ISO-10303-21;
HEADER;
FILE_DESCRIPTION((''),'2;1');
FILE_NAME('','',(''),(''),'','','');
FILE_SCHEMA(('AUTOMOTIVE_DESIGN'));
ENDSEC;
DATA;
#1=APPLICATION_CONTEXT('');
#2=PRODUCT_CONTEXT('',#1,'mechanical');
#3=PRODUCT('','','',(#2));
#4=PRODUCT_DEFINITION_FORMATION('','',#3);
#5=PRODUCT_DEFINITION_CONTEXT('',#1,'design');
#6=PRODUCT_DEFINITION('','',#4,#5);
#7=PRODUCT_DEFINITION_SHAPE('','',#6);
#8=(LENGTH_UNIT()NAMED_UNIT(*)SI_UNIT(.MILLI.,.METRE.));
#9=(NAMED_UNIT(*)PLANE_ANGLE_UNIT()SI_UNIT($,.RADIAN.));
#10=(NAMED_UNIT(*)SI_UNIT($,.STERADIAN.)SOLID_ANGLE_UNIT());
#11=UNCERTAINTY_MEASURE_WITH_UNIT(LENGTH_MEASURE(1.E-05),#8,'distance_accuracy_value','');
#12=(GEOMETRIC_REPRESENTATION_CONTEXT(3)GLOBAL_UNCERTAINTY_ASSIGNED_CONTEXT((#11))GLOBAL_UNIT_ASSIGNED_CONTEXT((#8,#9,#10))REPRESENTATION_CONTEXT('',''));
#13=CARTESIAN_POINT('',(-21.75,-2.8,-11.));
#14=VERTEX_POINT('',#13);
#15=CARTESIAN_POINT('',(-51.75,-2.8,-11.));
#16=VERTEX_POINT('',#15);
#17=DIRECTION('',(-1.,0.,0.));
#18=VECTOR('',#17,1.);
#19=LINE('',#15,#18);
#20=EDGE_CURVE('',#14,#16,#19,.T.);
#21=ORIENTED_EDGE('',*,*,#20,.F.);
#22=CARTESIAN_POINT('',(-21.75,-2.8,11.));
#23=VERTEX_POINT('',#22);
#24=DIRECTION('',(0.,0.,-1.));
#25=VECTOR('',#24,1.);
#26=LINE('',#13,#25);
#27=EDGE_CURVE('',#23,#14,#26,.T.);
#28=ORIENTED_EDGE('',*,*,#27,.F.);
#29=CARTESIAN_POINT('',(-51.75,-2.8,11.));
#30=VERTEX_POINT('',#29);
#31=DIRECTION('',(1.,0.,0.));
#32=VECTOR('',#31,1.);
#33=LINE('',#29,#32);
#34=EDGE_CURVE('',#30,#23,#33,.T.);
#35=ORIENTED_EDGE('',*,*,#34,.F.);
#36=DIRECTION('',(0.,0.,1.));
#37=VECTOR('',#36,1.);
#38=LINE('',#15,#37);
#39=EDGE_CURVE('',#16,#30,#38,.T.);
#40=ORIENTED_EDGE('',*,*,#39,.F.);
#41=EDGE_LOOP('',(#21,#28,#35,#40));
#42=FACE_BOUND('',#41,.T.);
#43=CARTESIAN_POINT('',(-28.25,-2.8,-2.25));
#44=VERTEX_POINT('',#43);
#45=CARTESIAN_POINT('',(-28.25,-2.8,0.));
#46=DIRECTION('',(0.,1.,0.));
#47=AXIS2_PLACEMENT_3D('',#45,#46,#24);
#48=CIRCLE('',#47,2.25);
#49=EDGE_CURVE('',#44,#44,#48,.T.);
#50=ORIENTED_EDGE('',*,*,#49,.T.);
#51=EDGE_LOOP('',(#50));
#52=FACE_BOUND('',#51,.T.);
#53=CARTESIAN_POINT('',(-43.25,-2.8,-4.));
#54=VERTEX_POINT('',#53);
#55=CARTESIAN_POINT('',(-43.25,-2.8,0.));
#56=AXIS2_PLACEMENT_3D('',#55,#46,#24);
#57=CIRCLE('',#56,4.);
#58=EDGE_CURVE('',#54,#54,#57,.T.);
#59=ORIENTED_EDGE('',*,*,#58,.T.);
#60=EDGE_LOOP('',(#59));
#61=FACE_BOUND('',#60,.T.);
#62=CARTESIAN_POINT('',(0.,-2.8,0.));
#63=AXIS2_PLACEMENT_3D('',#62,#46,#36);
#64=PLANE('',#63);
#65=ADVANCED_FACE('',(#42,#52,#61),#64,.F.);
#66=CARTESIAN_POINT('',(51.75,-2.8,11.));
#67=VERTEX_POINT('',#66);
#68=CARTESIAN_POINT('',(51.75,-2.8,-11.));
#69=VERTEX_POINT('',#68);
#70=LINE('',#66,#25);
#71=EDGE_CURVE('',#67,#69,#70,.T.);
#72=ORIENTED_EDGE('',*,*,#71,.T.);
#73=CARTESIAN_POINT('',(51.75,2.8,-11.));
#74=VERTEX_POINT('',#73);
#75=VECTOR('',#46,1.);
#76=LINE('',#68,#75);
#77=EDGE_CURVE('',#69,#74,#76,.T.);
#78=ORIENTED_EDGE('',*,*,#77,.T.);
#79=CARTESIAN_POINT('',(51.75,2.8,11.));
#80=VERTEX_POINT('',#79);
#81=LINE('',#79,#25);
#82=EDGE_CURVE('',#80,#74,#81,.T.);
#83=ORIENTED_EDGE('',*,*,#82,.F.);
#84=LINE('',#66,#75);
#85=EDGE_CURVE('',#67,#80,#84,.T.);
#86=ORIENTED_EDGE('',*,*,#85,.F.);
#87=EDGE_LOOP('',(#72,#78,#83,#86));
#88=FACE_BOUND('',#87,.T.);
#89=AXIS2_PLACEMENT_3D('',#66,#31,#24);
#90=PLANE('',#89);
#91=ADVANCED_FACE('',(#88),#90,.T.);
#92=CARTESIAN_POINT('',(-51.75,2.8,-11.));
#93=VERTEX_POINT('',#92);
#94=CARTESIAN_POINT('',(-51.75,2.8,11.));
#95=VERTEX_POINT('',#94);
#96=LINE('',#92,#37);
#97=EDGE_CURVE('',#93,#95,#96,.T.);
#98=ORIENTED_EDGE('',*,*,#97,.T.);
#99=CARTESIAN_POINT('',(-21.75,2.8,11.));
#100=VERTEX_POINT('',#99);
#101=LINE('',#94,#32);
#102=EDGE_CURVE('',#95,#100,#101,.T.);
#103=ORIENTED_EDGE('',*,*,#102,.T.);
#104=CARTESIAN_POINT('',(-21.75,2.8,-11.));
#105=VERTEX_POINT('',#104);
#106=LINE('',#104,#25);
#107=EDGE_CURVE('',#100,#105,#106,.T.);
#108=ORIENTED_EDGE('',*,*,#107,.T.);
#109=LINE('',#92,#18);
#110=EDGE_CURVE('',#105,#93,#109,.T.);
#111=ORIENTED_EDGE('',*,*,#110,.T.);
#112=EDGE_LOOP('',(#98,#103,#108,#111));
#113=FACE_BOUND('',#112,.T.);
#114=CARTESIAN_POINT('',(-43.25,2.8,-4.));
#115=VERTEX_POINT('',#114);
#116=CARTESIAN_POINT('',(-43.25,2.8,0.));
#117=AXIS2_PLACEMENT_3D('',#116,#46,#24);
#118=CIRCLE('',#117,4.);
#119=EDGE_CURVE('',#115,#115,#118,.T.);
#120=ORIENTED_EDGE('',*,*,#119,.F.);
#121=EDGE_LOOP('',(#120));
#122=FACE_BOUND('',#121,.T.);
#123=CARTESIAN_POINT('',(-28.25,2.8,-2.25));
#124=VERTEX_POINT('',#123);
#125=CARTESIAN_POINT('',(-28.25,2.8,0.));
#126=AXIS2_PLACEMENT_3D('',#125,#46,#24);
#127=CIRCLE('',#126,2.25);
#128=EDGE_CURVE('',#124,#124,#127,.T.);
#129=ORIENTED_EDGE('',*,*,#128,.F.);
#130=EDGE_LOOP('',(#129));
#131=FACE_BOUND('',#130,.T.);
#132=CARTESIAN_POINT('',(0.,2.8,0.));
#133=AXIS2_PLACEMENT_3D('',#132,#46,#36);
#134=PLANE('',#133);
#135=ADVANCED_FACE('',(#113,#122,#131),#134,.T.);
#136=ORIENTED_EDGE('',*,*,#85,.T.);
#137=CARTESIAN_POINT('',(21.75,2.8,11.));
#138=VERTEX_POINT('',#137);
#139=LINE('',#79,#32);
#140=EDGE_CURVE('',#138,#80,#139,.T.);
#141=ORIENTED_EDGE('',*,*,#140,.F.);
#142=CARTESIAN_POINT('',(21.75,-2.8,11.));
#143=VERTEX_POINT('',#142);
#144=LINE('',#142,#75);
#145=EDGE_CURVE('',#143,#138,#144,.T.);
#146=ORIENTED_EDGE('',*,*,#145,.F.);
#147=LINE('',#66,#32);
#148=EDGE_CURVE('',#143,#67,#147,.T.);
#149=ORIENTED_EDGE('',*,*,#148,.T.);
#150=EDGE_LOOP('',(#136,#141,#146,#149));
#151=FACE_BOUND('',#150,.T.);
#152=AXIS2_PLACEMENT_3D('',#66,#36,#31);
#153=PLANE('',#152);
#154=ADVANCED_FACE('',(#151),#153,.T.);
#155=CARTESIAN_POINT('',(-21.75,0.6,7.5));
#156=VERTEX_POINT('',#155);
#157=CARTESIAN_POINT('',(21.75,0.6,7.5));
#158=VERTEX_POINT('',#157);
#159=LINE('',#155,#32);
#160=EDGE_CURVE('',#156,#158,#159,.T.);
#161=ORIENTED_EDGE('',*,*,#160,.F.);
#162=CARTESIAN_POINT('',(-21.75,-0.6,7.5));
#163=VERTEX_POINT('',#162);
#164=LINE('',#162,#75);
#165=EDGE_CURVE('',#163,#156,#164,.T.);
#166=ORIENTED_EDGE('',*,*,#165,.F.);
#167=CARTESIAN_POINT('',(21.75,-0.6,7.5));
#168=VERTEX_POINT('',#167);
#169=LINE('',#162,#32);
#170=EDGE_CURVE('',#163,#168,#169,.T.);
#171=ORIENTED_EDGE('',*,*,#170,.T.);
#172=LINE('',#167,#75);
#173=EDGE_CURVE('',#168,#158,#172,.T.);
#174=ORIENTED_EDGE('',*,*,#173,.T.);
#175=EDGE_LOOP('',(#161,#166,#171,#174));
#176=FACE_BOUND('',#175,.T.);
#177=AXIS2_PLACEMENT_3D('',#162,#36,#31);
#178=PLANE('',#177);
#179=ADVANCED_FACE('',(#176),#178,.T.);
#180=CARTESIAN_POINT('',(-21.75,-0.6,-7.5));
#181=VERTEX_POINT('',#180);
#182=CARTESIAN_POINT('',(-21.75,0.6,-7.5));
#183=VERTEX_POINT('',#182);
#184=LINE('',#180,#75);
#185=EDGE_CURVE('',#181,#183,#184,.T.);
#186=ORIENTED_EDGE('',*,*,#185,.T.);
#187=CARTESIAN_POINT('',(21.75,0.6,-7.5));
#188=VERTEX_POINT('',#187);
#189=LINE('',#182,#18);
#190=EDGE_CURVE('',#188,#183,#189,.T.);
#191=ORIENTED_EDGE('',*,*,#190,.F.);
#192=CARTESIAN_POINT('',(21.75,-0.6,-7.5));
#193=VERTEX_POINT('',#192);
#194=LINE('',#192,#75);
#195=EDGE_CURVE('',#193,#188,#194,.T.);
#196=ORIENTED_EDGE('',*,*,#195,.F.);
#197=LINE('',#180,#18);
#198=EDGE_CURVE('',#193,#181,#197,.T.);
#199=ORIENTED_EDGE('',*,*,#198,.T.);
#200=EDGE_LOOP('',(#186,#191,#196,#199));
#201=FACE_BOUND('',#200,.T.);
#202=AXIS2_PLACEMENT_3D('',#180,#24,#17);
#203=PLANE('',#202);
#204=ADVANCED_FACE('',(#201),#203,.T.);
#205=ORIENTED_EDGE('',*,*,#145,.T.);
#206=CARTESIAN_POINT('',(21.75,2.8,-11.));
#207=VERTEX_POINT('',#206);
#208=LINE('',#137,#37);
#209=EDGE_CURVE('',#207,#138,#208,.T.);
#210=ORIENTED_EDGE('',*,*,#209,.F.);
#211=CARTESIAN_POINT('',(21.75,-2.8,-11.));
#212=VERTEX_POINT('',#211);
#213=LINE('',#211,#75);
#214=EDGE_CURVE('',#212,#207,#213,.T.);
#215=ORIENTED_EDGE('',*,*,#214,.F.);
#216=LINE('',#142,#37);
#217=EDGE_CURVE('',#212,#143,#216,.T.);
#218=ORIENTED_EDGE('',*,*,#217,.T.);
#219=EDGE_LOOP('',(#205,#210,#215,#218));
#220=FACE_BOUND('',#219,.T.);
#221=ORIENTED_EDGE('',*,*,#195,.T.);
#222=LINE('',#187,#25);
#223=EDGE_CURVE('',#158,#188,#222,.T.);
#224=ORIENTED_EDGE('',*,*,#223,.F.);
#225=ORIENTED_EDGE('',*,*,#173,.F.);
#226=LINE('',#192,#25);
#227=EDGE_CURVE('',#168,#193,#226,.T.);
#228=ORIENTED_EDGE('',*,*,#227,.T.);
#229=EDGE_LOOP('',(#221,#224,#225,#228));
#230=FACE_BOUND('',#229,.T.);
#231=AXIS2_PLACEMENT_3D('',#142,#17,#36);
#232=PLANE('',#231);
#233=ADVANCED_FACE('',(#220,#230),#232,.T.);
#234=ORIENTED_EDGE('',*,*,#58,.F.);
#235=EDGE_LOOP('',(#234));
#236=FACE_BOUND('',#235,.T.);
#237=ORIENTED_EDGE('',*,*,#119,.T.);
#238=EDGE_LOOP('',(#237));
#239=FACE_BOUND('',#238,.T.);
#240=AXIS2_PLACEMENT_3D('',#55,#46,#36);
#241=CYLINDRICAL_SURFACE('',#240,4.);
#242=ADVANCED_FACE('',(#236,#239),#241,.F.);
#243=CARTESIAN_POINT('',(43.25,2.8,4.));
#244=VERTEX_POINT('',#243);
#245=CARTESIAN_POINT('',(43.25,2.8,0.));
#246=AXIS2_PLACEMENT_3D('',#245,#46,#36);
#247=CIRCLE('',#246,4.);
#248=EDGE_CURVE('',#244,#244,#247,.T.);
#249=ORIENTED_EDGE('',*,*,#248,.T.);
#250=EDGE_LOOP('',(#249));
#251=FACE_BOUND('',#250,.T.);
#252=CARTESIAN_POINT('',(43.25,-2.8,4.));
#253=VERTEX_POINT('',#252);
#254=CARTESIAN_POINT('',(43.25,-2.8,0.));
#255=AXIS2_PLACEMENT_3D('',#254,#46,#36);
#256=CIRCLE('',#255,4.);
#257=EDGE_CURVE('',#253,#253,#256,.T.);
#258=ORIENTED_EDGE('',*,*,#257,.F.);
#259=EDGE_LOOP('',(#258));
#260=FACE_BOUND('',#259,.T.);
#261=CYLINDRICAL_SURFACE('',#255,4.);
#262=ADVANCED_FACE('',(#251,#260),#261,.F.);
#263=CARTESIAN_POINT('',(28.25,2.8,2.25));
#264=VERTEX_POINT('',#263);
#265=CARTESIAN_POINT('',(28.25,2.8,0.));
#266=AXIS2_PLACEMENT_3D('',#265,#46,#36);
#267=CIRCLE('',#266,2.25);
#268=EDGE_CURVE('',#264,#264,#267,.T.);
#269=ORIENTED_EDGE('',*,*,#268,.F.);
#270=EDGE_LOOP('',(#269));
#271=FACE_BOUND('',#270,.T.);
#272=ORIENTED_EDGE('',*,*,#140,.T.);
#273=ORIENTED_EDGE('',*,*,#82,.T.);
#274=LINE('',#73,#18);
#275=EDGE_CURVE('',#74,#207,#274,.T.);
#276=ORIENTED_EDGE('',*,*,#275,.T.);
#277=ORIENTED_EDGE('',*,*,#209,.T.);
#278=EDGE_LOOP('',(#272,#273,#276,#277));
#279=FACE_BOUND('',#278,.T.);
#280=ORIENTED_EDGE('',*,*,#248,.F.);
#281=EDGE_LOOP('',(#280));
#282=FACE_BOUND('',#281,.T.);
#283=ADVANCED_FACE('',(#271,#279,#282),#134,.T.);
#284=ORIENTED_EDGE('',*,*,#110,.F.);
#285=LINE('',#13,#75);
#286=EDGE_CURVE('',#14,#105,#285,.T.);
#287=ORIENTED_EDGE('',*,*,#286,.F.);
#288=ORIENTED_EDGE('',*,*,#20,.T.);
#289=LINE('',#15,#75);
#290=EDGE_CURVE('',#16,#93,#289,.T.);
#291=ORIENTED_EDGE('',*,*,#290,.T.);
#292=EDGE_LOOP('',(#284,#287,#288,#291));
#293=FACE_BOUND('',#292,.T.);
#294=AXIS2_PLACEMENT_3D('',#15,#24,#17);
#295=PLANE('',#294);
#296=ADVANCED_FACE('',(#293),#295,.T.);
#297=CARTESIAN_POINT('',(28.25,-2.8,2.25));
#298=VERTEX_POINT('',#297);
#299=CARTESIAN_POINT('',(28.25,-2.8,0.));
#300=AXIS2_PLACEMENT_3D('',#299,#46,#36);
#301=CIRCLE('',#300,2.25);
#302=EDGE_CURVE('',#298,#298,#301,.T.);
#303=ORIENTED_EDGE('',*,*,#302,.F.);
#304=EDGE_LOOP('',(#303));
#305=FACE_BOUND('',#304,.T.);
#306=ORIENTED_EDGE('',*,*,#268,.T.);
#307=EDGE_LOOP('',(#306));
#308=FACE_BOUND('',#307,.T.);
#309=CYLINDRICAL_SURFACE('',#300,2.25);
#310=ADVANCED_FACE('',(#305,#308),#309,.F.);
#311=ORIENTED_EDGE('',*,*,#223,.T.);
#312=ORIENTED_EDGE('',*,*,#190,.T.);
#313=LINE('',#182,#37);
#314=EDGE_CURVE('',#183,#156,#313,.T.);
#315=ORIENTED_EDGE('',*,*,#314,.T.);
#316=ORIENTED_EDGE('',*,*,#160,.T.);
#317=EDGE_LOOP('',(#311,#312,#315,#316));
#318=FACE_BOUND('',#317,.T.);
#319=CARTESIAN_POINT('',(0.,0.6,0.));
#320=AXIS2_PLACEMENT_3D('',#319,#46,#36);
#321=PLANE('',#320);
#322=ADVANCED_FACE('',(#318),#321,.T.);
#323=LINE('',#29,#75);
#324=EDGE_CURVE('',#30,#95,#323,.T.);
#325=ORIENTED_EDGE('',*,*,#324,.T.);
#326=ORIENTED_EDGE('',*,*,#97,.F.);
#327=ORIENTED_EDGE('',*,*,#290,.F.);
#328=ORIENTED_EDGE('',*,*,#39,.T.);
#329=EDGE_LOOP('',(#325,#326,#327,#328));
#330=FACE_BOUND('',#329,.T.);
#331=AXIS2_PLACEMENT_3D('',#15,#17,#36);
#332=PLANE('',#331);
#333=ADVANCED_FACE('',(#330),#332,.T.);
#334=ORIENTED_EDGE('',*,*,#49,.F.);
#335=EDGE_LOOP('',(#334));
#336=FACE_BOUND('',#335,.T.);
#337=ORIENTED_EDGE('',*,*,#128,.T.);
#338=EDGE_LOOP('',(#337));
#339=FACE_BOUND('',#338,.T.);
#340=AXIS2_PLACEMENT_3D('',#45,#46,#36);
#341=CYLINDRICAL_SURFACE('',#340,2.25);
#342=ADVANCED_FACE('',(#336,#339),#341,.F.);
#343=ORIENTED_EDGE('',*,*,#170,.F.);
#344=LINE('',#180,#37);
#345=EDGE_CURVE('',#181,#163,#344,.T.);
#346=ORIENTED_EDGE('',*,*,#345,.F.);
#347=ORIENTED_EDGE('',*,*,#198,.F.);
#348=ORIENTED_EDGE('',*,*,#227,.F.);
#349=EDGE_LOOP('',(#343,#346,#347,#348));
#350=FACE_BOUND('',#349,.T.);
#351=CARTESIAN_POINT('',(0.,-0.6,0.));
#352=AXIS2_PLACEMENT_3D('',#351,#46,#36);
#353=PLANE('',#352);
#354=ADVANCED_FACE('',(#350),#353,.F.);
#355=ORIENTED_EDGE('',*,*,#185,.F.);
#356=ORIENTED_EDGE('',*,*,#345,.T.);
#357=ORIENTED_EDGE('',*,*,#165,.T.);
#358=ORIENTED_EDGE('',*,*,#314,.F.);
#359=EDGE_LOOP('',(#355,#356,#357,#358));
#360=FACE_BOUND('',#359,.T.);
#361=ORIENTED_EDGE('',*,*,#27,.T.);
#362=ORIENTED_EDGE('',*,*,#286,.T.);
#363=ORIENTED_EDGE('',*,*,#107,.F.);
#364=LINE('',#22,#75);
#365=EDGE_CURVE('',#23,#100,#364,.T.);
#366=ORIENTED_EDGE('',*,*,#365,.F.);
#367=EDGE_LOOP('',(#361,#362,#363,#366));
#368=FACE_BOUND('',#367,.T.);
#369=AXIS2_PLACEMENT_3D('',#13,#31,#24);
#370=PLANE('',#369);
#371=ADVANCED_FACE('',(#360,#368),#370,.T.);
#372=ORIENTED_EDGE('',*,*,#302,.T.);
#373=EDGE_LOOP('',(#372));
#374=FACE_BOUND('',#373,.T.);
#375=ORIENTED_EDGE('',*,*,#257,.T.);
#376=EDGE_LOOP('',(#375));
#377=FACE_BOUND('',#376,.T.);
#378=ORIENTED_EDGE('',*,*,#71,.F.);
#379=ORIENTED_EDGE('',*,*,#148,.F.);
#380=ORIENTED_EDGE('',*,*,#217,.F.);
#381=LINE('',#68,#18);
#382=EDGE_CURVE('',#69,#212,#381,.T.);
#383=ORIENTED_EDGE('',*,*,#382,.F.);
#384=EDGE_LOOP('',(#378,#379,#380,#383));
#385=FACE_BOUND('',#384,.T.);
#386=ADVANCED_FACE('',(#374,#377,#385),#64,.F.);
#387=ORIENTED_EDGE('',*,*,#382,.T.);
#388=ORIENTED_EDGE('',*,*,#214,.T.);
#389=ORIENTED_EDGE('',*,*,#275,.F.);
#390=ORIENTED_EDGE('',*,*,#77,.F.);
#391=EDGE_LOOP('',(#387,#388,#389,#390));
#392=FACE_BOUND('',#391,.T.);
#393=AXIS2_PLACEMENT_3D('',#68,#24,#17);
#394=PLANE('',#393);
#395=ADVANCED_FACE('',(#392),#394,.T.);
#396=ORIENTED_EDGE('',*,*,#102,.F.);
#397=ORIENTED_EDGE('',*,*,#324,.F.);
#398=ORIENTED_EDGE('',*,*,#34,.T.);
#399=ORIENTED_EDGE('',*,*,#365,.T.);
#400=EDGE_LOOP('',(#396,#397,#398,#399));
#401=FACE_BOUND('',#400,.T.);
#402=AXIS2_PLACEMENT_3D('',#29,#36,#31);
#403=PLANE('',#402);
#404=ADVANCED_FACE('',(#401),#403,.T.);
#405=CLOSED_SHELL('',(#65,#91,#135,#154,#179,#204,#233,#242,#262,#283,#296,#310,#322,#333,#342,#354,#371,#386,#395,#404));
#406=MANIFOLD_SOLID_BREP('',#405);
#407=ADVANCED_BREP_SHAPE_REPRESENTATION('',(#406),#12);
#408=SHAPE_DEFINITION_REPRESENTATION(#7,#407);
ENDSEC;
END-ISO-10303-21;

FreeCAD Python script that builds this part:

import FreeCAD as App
import Part
import Sketcher

V = App.Vector

doc = App.newDocument("Part")
body = doc.addObject("PartDesign::Body", "Body")

# Sketch on XZ plane
sketch1 = body.newObject("Sketcher::SketchObject", "Sketch")
sketch1.AttachmentSupport = (doc.getObject("XZ_Plane"), [""])
sketch1.MapMode = "FlatFace"
sketch1.addGeometry([
    Part.LineSegment(V(-22, -8, 0), V(-22, 8, 0)),
    Part.LineSegment(V(-22, 8, 0), V(22, 8, 0)),
    Part.LineSegment(V(22, 8, 0), V(22, -8, 0)),
    Part.LineSegment(V(22, -8, 0), V(-22, -8, 0)),
], False)
sketch1.addConstraint([
    Sketcher.Constraint("Coincident", 0, 2, 1, 1),
    Sketcher.Constraint("Coincident", 1, 2, 2, 1),
    Sketcher.Constraint("Coincident", 2, 2, 3, 1),
    Sketcher.Constraint("Coincident", 3, 2, 0, 1),
    Sketcher.Constraint("Vertical", 0),
    Sketcher.Constraint("Horizontal", 1),
    Sketcher.Constraint("Vertical", 2),
    Sketcher.Constraint("Horizontal", 3),
    Sketcher.Constraint("Symmetric", 0, 2, 2, 2, -1, 1),
    Sketcher.Constraint("DistanceY", 0, 1, 0, 2, 15.0),
    Sketcher.Constraint("DistanceX", 1, 1, 1, 2, 43.5),
])
pad1 = body.newObject("PartDesign::Pad", "Pad")
pad1.Profile = sketch1
pad1.Type = "TwoLengths"
pad1.Length = 0.6
pad1.Length2 = 0.6
pad1.Reversed = True

# Sketch on XZ plane
sketch2 = body.newObject("Sketcher::SketchObject", "Sketch001")
sketch2.AttachmentSupport = (doc.getObject("XZ_Plane"), [""])
sketch2.MapMode = "FlatFace"
sketch2.addGeometry([
    Part.LineSegment(V(22, -11, 0), V(22, 11, 0)),  # 0
    Part.LineSegment(V(22, 11, 0), V(52, 11, 0)),  # 1
    Part.LineSegment(V(52, 11, 0), V(52, -11, 0)),  # 2
    Part.LineSegment(V(52, -11, 0), V(22, -11, 0)),  # 3
    Part.LineSegment(V(-52, -11, 0), V(-52, 11, 0)),  # 4
    Part.LineSegment(V(-52, 11, 0), V(-22, 11, 0)),  # 5
    Part.LineSegment(V(-22, 11, 0), V(-22, -11, 0)),  # 6
    Part.LineSegment(V(-22, -11, 0), V(-52, -11, 0)),  # 7
], False)
sketch2.addConstraint([
    Sketcher.Constraint("Coincident", 0, 2, 1, 1),
    Sketcher.Constraint("Coincident", 1, 2, 2, 1),
    Sketcher.Constraint("Coincident", 2, 2, 3, 1),
    Sketcher.Constraint("Coincident", 3, 2, 0, 1),
    Sketcher.Constraint("Coincident", 4, 2, 5, 1),
    Sketcher.Constraint("Coincident", 5, 2, 6, 1),
    Sketcher.Constraint("Coincident", 6, 2, 7, 1),
    Sketcher.Constraint("Coincident", 7, 2, 4, 1),
    Sketcher.Constraint("Vertical", 0),
    Sketcher.Constraint("Horizontal", 1),
    Sketcher.Constraint("Vertical", 2),
    Sketcher.Constraint("Horizontal", 3),
    Sketcher.Constraint("Vertical", 4),
    Sketcher.Constraint("Horizontal", 5),
    Sketcher.Constraint("Vertical", 6),
    Sketcher.Constraint("Horizontal", 7),
    Sketcher.Constraint("Symmetric", 2, 2, 4, 2, -1, 1),
    Sketcher.Constraint("Symmetric", 0, 2, 6, 2, -1, 1),
    Sketcher.Constraint("Horizontal", 1, 2, 4, 2),
    Sketcher.Constraint("DistanceX", 1, 1, 1, 2, 30.0),
    Sketcher.Constraint("DistanceY", 0, 1, 0, 2, 22.0),
    Sketcher.Constraint("DistanceX", 4, 2, 0, 2, 73.5),
])
pad2 = body.newObject("PartDesign::Pad", "Pad001")
pad2.Profile = sketch2
pad2.Type = "TwoLengths"
pad2.Length = 2.8
pad2.Length2 = 2.8
pad2.Reversed = True

# Sketch on XZ plane
sketch3 = body.newObject("Sketcher::SketchObject", "Sketch002")
sketch3.AttachmentSupport = (doc.getObject("XZ_Plane"), [""])
sketch3.MapMode = "FlatFace"
sketch3.addGeometry([
    Part.Circle(V(28.2, 0, 0), V(0, 0, 1), 2.2),
    Part.Circle(V(43.2, 0, 0), V(0, 0, 1), 4),
    Part.Circle(V(-43.2, 0, 0), V(0, 0, 1), 4),
    Part.Circle(V(-28.2, 0, 0), V(0, 0, 1), 2.2),
], False)
sketch3.addConstraint([
    Sketcher.Constraint("Equal", 1, 2),
    Sketcher.Constraint("Equal", 0, 3),
    Sketcher.Constraint("Symmetric", 1, 3, 2, 3, -1, 1),
    Sketcher.Constraint("Symmetric", 0, 3, 3, 3, -1, 1),
    Sketcher.Constraint("PointOnObject", 0, 3, -1),
    Sketcher.Constraint("PointOnObject", 1, 3, -1),
    Sketcher.Constraint("Diameter", 1, 8.0),
    Sketcher.Constraint("Diameter", 0, 4.5),
    Sketcher.Constraint("DistanceX", 0, 3, 1, 3, 15.0),
    Sketcher.Constraint("DistanceX", 2, 3, 0, 3, 71.5),
])
pocket1 = body.newObject("PartDesign::Pocket", "Pocket")
pocket1.Profile = sketch3
pocket1.Type = "ThroughAll"
pocket1.Midplane = True

doc.recompute()
